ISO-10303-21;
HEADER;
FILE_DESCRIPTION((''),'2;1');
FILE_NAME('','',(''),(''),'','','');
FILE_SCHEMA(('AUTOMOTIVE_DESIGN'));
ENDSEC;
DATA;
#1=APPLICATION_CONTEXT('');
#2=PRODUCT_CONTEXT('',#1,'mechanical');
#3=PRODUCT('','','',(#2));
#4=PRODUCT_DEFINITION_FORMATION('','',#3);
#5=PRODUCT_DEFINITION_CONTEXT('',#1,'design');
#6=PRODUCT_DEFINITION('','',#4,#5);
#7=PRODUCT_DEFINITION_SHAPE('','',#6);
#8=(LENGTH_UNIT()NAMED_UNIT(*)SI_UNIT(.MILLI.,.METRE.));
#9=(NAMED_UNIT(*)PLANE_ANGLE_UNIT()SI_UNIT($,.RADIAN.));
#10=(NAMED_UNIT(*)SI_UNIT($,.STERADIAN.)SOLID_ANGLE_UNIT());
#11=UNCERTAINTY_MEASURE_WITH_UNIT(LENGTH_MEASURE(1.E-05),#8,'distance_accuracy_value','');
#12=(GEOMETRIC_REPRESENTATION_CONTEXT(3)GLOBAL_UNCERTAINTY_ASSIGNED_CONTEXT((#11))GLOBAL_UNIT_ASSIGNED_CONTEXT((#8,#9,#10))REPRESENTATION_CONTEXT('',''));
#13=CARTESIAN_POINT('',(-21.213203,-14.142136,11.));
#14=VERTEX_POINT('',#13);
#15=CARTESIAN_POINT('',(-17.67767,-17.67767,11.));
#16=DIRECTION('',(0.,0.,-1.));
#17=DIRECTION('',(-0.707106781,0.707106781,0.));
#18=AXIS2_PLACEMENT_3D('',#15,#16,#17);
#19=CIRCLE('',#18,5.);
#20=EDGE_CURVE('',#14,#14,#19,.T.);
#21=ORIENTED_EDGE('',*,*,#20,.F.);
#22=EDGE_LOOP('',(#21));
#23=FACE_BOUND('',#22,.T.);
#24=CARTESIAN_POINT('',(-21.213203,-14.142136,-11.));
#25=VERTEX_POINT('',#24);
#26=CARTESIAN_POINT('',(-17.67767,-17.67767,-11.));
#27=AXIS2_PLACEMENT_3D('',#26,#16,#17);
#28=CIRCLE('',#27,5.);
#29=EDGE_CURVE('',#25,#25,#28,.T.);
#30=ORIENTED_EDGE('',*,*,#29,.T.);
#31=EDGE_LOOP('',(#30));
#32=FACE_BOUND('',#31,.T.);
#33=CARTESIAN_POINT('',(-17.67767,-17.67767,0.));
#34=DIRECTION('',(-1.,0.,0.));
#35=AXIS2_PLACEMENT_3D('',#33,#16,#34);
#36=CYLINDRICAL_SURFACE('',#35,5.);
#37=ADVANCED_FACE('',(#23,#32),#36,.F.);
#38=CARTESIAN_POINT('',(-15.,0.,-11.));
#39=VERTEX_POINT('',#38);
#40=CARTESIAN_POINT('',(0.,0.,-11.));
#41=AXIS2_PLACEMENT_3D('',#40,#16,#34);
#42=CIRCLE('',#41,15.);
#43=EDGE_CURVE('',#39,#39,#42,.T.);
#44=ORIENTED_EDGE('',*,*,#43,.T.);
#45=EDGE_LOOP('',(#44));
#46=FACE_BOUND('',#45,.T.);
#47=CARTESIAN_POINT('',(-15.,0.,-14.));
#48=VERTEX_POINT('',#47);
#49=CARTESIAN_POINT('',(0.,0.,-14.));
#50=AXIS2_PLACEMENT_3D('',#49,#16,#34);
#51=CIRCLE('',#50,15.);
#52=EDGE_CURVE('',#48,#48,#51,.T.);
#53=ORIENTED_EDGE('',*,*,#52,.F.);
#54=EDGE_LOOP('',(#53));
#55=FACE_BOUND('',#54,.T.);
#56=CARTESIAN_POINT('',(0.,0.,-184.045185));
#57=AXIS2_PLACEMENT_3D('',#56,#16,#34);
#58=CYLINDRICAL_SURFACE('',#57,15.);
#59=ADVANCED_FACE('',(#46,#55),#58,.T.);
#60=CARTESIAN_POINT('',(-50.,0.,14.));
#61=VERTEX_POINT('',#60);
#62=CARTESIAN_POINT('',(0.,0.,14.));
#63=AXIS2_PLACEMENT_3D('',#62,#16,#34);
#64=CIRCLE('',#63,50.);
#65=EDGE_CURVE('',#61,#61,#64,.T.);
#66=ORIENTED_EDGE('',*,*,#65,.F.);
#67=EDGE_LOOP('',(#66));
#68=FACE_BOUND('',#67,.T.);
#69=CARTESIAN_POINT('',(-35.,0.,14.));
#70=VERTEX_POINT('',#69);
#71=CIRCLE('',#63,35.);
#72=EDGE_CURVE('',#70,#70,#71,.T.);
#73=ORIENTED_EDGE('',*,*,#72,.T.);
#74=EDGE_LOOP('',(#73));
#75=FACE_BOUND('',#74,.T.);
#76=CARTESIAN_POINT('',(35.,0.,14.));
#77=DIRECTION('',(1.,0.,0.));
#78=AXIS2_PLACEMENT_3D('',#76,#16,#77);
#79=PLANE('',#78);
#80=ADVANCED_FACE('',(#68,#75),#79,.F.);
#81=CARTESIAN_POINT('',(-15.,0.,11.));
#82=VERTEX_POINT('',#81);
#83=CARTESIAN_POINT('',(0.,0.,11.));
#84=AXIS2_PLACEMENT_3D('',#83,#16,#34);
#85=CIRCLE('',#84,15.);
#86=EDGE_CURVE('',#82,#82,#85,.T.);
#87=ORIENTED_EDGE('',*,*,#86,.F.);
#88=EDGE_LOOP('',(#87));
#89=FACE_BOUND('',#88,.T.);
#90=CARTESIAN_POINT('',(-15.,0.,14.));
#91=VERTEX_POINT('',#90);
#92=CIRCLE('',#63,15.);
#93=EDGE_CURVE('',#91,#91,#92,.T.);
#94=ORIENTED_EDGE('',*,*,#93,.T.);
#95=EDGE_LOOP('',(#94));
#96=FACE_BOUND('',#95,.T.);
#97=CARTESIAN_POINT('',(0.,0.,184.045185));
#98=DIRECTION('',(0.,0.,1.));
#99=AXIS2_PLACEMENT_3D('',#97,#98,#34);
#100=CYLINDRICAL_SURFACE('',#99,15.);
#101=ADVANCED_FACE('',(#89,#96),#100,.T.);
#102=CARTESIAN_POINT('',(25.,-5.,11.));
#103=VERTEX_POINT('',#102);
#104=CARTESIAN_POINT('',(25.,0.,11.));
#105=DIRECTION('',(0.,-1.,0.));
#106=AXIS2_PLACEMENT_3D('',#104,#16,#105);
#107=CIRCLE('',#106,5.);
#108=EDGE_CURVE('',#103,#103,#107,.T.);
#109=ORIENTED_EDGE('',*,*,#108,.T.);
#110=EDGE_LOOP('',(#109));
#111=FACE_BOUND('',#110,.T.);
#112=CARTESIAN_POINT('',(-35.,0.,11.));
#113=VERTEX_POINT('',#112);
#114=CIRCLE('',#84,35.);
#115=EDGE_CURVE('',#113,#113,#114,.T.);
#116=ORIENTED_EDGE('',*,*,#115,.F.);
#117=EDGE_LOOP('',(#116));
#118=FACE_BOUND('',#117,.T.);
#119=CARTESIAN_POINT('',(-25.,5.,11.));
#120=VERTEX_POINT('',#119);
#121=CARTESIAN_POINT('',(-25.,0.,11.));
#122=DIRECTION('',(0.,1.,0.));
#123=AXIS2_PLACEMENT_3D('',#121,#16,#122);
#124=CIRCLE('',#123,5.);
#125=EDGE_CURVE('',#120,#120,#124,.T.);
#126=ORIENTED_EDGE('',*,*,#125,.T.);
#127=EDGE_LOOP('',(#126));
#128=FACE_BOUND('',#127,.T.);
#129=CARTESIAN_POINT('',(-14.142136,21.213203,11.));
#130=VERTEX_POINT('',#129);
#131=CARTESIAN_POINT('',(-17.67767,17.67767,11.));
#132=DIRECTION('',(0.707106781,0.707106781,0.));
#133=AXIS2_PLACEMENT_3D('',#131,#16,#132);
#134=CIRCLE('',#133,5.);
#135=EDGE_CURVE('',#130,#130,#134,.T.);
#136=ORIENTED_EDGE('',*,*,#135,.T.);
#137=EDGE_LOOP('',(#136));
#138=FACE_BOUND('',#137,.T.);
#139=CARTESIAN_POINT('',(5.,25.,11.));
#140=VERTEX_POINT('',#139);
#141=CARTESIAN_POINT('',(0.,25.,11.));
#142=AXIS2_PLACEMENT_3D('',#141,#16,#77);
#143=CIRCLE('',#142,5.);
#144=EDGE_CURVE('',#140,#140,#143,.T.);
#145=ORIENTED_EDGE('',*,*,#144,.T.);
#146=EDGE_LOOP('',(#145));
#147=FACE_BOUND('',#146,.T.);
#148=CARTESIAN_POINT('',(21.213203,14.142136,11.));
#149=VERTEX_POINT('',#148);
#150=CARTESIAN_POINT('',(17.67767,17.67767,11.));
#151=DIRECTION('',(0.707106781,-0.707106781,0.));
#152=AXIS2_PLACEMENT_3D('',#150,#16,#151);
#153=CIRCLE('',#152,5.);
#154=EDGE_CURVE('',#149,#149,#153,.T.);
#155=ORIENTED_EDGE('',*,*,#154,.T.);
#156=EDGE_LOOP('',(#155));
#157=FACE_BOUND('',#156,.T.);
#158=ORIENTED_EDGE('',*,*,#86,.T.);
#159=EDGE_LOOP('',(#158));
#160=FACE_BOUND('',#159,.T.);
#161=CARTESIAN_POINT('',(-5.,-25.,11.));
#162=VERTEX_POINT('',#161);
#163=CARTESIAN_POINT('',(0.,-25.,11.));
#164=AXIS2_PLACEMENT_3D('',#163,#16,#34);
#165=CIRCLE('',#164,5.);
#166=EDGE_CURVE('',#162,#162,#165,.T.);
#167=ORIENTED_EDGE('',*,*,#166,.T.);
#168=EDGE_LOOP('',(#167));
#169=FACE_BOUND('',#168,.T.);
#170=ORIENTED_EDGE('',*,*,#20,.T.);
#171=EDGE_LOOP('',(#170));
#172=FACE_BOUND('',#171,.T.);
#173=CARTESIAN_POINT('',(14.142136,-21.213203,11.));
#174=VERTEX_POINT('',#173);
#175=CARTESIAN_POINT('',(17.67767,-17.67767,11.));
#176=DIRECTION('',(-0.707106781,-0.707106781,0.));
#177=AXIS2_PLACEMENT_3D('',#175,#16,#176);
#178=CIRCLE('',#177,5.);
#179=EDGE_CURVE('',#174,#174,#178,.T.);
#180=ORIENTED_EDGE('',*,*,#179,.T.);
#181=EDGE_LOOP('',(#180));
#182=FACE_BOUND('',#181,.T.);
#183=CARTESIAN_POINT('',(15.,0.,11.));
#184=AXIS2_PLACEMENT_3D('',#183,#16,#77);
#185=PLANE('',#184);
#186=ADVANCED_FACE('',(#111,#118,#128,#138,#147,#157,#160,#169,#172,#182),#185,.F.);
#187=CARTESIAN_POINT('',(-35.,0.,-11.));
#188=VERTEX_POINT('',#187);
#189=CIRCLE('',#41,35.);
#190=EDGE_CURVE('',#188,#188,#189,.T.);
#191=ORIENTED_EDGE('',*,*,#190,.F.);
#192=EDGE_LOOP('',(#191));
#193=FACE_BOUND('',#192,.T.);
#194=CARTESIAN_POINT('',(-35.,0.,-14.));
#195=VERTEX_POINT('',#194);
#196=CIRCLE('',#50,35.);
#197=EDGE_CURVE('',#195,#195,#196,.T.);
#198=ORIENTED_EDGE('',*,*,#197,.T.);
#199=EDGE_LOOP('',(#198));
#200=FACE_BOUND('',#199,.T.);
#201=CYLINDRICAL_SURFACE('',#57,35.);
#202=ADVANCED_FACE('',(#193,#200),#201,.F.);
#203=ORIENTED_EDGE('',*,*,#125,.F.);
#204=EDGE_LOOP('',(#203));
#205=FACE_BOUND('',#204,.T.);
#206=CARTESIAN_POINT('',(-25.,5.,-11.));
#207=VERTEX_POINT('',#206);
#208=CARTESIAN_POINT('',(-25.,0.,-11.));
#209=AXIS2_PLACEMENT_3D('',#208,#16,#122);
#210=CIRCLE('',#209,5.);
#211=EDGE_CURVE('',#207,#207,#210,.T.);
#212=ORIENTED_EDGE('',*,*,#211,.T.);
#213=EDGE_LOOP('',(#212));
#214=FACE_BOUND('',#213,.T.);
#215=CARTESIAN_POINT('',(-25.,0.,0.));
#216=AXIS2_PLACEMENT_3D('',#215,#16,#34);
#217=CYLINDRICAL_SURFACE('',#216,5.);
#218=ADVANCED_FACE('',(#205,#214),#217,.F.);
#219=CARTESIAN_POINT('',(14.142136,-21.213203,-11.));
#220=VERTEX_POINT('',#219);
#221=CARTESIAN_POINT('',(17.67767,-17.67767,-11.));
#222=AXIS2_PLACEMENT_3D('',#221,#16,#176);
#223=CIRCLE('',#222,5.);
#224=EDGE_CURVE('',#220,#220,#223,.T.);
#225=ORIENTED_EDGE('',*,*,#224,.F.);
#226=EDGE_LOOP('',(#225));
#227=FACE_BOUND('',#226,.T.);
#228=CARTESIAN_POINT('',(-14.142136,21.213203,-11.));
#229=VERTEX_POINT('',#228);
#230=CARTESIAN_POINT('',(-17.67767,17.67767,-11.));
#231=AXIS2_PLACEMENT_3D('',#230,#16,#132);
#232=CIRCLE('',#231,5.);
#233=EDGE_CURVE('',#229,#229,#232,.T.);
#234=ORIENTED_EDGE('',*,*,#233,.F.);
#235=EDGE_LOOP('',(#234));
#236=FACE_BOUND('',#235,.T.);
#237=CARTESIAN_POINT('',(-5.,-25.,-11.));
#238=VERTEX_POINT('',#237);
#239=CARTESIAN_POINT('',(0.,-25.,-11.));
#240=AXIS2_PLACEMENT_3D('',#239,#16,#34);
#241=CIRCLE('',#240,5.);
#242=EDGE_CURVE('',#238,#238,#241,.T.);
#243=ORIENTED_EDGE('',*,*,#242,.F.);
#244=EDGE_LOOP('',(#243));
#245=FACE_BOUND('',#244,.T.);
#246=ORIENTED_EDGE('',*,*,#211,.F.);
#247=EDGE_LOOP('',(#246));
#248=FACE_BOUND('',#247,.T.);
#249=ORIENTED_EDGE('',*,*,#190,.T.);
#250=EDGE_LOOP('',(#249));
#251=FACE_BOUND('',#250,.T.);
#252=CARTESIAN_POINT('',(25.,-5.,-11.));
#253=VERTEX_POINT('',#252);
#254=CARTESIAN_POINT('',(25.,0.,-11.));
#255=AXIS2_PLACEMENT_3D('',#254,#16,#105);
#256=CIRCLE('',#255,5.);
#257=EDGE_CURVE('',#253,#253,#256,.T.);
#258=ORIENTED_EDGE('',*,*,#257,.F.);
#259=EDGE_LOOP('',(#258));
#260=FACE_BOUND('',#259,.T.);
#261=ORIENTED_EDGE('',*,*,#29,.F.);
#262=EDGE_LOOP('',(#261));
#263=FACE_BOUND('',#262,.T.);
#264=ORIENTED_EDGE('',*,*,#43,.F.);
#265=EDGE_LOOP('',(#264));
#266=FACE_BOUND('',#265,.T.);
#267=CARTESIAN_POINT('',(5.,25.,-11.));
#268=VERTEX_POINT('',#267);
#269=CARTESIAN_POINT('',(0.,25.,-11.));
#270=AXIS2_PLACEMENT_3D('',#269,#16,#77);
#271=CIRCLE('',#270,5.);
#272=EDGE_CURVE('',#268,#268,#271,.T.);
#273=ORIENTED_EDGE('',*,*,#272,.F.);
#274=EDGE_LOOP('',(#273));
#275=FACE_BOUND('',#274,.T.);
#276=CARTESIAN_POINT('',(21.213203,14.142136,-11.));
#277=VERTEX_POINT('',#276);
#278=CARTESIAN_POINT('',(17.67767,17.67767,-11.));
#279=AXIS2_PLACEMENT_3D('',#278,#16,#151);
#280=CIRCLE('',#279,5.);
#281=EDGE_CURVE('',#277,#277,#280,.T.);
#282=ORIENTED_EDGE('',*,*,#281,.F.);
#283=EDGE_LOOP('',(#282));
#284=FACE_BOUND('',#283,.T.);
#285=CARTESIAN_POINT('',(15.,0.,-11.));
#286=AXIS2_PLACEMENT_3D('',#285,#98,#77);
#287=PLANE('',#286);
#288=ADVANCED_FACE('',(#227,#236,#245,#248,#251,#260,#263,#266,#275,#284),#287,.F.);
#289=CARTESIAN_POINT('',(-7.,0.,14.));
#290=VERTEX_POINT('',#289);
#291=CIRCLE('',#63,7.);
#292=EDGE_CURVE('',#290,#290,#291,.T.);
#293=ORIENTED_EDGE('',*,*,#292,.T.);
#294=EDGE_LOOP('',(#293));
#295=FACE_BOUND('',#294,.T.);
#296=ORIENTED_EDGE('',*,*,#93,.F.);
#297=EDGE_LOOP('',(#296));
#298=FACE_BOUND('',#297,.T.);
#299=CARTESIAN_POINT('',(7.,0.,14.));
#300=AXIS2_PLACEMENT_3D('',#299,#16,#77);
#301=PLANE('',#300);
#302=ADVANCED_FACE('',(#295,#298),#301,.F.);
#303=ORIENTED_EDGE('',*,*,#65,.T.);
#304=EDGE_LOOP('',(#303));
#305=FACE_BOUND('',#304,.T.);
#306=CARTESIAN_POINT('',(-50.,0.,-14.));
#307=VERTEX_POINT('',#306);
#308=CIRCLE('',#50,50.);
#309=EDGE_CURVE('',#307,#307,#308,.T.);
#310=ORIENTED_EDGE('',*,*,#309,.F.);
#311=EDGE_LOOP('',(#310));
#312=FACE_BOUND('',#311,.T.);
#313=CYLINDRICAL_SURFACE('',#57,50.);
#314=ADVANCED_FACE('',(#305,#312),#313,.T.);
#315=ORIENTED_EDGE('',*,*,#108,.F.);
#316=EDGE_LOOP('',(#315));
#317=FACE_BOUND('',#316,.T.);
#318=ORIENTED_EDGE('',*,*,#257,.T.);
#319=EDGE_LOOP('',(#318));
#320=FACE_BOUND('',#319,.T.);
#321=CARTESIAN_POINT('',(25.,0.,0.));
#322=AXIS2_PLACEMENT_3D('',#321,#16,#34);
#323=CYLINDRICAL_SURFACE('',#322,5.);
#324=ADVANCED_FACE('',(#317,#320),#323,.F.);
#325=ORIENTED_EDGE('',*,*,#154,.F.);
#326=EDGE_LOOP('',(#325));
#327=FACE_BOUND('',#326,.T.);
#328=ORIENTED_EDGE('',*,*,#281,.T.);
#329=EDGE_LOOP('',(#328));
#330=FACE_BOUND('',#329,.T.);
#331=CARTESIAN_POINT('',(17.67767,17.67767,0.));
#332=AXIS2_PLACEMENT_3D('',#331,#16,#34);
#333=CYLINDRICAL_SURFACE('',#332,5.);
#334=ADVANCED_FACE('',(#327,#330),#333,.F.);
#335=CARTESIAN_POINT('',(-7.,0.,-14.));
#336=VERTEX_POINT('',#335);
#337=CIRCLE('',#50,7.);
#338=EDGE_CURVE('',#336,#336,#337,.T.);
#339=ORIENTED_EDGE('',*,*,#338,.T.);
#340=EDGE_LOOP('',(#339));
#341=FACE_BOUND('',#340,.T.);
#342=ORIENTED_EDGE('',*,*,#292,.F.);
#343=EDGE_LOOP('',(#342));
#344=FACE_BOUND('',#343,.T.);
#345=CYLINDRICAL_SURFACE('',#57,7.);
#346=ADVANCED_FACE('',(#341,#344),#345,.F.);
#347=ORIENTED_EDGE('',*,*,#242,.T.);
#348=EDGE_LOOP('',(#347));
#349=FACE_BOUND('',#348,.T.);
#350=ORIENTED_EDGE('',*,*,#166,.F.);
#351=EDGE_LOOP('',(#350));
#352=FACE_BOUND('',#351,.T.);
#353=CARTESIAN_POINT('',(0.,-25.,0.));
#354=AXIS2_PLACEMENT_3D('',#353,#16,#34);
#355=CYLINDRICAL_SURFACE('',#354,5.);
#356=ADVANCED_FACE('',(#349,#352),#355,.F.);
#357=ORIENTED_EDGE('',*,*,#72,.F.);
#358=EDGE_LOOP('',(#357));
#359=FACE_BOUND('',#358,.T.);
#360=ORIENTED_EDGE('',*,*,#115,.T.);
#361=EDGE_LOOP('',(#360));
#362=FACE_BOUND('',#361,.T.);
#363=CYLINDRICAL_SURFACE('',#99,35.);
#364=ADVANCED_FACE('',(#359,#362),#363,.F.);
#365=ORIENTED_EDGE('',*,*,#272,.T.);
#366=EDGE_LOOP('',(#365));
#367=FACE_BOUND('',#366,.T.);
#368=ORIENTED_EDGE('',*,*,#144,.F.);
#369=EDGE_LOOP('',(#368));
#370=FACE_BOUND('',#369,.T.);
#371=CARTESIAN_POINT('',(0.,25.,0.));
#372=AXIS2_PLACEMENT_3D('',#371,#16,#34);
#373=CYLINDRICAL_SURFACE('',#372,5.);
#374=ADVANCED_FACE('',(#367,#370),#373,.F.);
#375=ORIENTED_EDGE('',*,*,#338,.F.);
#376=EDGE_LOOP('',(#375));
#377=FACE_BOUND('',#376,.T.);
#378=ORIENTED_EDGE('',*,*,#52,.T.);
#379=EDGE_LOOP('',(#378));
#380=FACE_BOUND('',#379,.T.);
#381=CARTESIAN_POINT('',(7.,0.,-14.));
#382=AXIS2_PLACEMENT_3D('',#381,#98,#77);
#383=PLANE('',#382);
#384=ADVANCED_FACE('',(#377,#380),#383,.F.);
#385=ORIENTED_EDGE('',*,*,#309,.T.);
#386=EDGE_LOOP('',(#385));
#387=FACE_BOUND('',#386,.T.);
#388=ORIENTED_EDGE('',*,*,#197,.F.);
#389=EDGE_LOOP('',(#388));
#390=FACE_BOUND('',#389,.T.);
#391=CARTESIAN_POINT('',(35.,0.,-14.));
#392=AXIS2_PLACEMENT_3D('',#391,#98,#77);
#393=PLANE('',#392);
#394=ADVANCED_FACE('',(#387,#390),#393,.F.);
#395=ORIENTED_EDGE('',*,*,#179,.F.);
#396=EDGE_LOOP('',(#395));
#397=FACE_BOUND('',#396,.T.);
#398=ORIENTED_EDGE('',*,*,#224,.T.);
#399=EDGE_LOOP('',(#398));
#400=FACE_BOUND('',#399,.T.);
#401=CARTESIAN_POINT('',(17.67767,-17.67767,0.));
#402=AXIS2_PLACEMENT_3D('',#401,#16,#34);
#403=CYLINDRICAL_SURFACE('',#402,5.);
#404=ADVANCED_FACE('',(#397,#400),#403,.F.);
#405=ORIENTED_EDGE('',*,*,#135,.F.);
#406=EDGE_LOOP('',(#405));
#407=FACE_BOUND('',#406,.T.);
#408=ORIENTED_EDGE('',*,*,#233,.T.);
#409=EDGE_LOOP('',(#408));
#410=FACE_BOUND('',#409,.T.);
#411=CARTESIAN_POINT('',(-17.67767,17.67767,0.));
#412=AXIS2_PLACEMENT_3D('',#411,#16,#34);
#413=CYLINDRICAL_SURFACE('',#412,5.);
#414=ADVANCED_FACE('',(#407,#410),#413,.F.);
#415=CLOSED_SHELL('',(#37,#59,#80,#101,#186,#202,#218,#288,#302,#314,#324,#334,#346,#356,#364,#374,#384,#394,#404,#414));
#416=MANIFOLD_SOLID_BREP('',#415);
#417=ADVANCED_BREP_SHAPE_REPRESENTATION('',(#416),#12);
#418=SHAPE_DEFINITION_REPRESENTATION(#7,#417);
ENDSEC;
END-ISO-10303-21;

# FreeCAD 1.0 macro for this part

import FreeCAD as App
import Part
import Sketcher
from FreeCAD import Vector
Q = App.Units.Quantity

doc = App.newDocument("Part")
body = doc.addObject("PartDesign::Body", "Body")

# Sketch on XZ plane
sketch1 = body.newObject("Sketcher::SketchObject", "Sketch")
sketch1.AttachmentSupport = (doc.getObject("XZ_Plane"), [""])
sketch1.MapMode = "FlatFace"
sketch1.addGeometry(Part.LineSegment(Vector(7, -14, 0), Vector(7, 0, 0)), False)
sketch1.addGeometry(Part.LineSegment(Vector(7, 0, 0), Vector(50, 0, 0)), False)
sketch1.addGeometry(Part.LineSegment(Vector(50, 0, 0), Vector(50, -14, 0)), False)
sketch1.addGeometry(Part.LineSegment(Vector(50, -14, 0), Vector(35, -14, 0)), False)
sketch1.addGeometry(Part.LineSegment(Vector(35, -14, 0), Vector(35, -11, 0)), False)
sketch1.addGeometry(Part.LineSegment(Vector(35, -11, 0), Vector(15, -11, 0)), False)
sketch1.addGeometry(Part.LineSegment(Vector(15, -11, 0), Vector(15, -14, 0)), False)
sketch1.addGeometry(Part.LineSegment(Vector(15, -14, 0), Vector(7, -14, 0)), False)
sketch1.addConstraint(Sketcher.Constraint("Coincident", 0, 2, 1, 1))
sketch1.addConstraint(Sketcher.Constraint("Coincident", 1, 2, 2, 1))
sketch1.addConstraint(Sketcher.Constraint("Coincident", 2, 2, 3, 1))
sketch1.addConstraint(Sketcher.Constraint("Coincident", 3, 2, 4, 1))
sketch1.addConstraint(Sketcher.Constraint("Coincident", 4, 2, 5, 1))
sketch1.addConstraint(Sketcher.Constraint("Coincident", 5, 2, 6, 1))
sketch1.addConstraint(Sketcher.Constraint("Coincident", 6, 2, 7, 1))
sketch1.addConstraint(Sketcher.Constraint("Coincident", 7, 2, 0, 1))
sketch1.addConstraint(Sketcher.Constraint("Vertical", 0))
sketch1.addConstraint(Sketcher.Constraint("Horizontal", 1))
sketch1.addConstraint(Sketcher.Constraint("Vertical", 2))
sketch1.addConstraint(Sketcher.Constraint("Horizontal", 3))
sketch1.addConstraint(Sketcher.Constraint("Vertical", 4))
sketch1.addConstraint(Sketcher.Constraint("Horizontal", 5))
sketch1.addConstraint(Sketcher.Constraint("Vertical", 6))
sketch1.addConstraint(Sketcher.Constraint("Horizontal", 7))
sketch1.addConstraint(Sketcher.Constraint("PointOnObject", 0, 2, -1))
sketch1.addConstraint(Sketcher.Constraint("Horizontal", 3, 2, 6, 2))
sketch1.addConstraint(Sketcher.Constraint("DistanceX", 1, 1, 1, 2, Q("43 mm")))
sketch1.addConstraint(Sketcher.Constraint("DistanceX", 3, 2, 3, 1, Q("15 mm")))
sketch1.addConstraint(Sketcher.Constraint("DistanceX", 5, 2, 5, 1, Q("20 mm")))
sketch1.addConstraint(Sketcher.Constraint("DistanceY", 0, 1, 0, 2, Q("14 mm")))
sketch1.addConstraint(Sketcher.Constraint("DistanceY", 4, 1, 4, 2, Q("3 mm")))
sketch1.addConstraint(Sketcher.Constraint("DistanceX", -1, 1, 0, 2, Q("7 mm")))
revolution = body.newObject("PartDesign::Revolution", "Revolution")
revolution.Profile = sketch1
revolution.ReferenceAxis = (sketch1, ["V_Axis"])
revolution.Angle = 360

# Sketch on XY plane
sketch2 = body.newObject("Sketcher::SketchObject", "Sketch001")
sketch2.AttachmentSupport = (doc.getObject("XY_Plane"), [""])
sketch2.MapMode = "FlatFace"
sketch2.AttachmentOffset = App.Placement(Vector(0, 0, -11), App.Rotation())
sketch2.addGeometry(Part.Circle(Vector(0, -25, 0), Vector(0, 0, 1), 5), False)
sketch2.addConstraint(Sketcher.Constraint("PointOnObject", 0, 3, -2))
sketch2.addConstraint(Sketcher.Constraint("Diameter", 0, Q("10 mm")))
sketch2.addConstraint(Sketcher.Constraint("DistanceY", 0, 3, -1, 1, Q("25 mm")))
pocket1 = body.newObject("PartDesign::Pocket", "Pocket")
pocket1.Profile = sketch2
pocket1.Type = "ThroughAll"
pocket1.Reversed = True
doc.recompute()

polarpattern = body.newObject("PartDesign::PolarPattern", "PolarPattern")
polarpattern.Originals = [pocket1]
polarpattern.Axis = (doc.getObject("Z_Axis"), [""])
polarpattern.Angle = 360
polarpattern.Occurrences = 8
body.Tip = polarpattern
body2 = doc.addObject("PartDesign::Body", "Body001")
doc.recompute()

body2.BaseFeature = body
doc.recompute()

mirroring = doc.addObject("Part::Mirroring", "Mirroring")
mirroring.Source = body
mirroring.Base = Vector(0, 0, 0)
mirroring.Normal = Vector(0, 0, 1)
body3 = doc.addObject("PartDesign::Body", "Body002")
body3.BaseFeature = mirroring
boolean = body2.newObject("PartDesign::Boolean", "Boolean")
boolean.Type = "Fuse"
boolean.addObjects([body3])
doc.recompute()
mirroring.Visibility = False

doc.recompute()
